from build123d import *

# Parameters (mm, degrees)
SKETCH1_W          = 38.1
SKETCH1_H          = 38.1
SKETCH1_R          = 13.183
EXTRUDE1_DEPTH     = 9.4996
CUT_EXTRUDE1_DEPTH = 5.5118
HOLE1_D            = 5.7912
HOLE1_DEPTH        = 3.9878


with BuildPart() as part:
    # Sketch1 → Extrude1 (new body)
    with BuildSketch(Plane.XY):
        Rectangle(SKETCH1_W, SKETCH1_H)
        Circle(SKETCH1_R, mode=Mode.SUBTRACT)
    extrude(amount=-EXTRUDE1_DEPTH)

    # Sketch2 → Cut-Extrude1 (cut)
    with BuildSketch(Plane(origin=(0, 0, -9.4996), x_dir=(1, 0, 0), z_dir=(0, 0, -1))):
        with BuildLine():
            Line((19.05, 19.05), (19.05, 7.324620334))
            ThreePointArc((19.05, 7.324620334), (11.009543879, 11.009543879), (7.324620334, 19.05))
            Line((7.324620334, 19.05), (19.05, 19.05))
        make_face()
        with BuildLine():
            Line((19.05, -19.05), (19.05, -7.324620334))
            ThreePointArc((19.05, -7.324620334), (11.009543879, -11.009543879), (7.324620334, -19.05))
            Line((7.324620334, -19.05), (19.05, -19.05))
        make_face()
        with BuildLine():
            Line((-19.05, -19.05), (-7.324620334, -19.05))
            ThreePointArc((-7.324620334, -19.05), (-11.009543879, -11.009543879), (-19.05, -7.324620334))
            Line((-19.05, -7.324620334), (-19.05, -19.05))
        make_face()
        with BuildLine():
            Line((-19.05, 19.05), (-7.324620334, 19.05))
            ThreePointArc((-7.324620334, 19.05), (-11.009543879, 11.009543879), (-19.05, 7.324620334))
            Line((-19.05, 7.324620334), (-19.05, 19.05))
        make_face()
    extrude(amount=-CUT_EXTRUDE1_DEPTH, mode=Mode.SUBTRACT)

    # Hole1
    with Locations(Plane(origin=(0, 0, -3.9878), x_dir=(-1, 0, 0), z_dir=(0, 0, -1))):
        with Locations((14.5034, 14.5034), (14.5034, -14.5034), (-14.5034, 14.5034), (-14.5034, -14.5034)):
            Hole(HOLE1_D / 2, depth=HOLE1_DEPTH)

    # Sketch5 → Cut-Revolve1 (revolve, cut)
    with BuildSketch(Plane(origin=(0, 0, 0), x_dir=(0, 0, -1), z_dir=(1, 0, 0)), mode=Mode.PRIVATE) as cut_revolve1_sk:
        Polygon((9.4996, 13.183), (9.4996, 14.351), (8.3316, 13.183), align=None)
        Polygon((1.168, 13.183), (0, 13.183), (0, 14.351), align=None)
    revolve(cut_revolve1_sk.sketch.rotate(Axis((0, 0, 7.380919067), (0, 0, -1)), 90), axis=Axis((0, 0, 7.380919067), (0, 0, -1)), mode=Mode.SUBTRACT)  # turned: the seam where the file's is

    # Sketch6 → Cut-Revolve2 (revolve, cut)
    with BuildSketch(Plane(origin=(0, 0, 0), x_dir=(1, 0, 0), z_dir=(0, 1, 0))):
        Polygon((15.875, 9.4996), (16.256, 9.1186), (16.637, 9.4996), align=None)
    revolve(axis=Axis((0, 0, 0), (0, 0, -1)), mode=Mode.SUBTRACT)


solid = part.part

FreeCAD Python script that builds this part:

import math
import FreeCAD as App
import Part
import Sketcher
Q = App.Units.Quantity


def add_polygon(sketch, points):
    """Adds a closed chain of lines whose ends are joined by coincident constraints."""
    first, n = sketch.GeometryCount, len(points)
    for a, b in zip(points, points[1:] + points[:1]):
        sketch.addGeometry(Part.LineSegment(App.Vector(*a, 0), App.Vector(*b, 0)), False)
    for i in range(n):
        sketch.addConstraint(Sketcher.Constraint("Coincident", first + i, 2, first + (i + 1) % n, 1))

doc = App.newDocument("Part")
body = doc.addObject("PartDesign::Body", "Body")

sketch1 = doc.addObject("Sketcher::SketchObject", "Sketch")
body.addObject(sketch1)
sketch1.AttachmentSupport = (doc.XY_Plane, [""])
sketch1.MapMode = "FlatFace"
add_polygon(sketch1, [(-19, 19), (-19, -19), (19, -19), (19, 19)])
sketch1.addGeometry(Part.Circle(App.Vector(0, 0, 0), App.Vector(0, 0, 1), 13), False)
sketch1.addConstraint([
    Sketcher.Constraint("Vertical", 0),
    Sketcher.Constraint("Horizontal", 1),
    Sketcher.Constraint("Vertical", 2),
    Sketcher.Constraint("Horizontal", 3),
    Sketcher.Constraint("Coincident", 4, 3, -1, 1),
    Sketcher.Constraint("Symmetric", 0, 2, 2, 2, -1, 1),
    Sketcher.Constraint("Equal", 3, 0),
    Sketcher.Constraint("DistanceX", 1, 1, 1, 2, Q("1.5 in")),
    Sketcher.Constraint("Diameter", 4, Q("26.366 mm")),
])
pad1 = doc.addObject("PartDesign::Pad", "Pad")
body.addObject(pad1)
pad1.Profile = sketch1
pad1.Length = Q("0.374 in")
pad1.Reversed = True

sketch2 = doc.addObject("Sketcher::SketchObject", "Sketch001")
body.addObject(sketch2)
sketch2.AttachmentSupport = (doc.XY_Plane, [""])
sketch2.MapMode = "FlatFace"
sketch2.AttachmentOffset = App.Placement(App.Vector(0, 0, -0.374 * 25.4), App.Rotation())
sketch2.addGeometry([
    Part.LineSegment(App.Vector(19, -7, 0), App.Vector(19, -19, 0)),
    Part.LineSegment(App.Vector(19, -19, 0), App.Vector(7, -19, 0)),
    Part.ArcOfCircle(Part.Circle(App.Vector(20, -20, 0), App.Vector(0, 0, 1), 13), math.radians(94), math.radians(176)),
    Part.LineSegment(App.Vector(19, 19, 0), App.Vector(19, 7, 0)),
    Part.ArcOfCircle(Part.Circle(App.Vector(20, 20, 0), App.Vector(0, 0, 1), 13), math.radians(-176), math.radians(-94)),
    Part.LineSegment(App.Vector(7, 19, 0), App.Vector(19, 19, 0)),
    Part.LineSegment(App.Vector(-19, 19, 0), App.Vector(-7, 19, 0)),
    Part.ArcOfCircle(Part.Circle(App.Vector(-20, 20, 0), App.Vector(0, 0, 1), 13), math.radians(-86), math.radians(-4)),
    Part.LineSegment(App.Vector(-19, 7, 0), App.Vector(-19, 19, 0)),
    Part.LineSegment(App.Vector(-7, -19, 0), App.Vector(-19, -19, 0)),
    Part.LineSegment(App.Vector(-19, -19, 0), App.Vector(-19, -7, 0)),
    Part.ArcOfCircle(Part.Circle(App.Vector(-20, -20, 0), App.Vector(0, 0, 1), 13), math.radians(4), math.radians(86)),
], False)
sketch2.addConstraint([
    Sketcher.Constraint("Coincident", 0, 2, 1, 1),
    Sketcher.Constraint("Coincident", 1, 2, 2, 2),
    Sketcher.Constraint("Coincident", 2, 1, 0, 1),
    Sketcher.Constraint("Coincident", 3, 2, 4, 2),
    Sketcher.Constraint("Coincident", 4, 1, 5, 1),
    Sketcher.Constraint("Coincident", 5, 2, 3, 1),
    Sketcher.Constraint("Coincident", 6, 2, 7, 2),
    Sketcher.Constraint("Coincident", 7, 1, 8, 1),
    Sketcher.Constraint("Coincident", 8, 2, 6, 1),
    Sketcher.Constraint("Coincident", 9, 2, 10, 1),
    Sketcher.Constraint("Coincident", 10, 2, 11, 2),
    Sketcher.Constraint("Coincident", 11, 1, 9, 1),
    Sketcher.Constraint("Vertical", 0),
    Sketcher.Constraint("Horizontal", 1),
    Sketcher.Constraint("Vertical", 3),
    Sketcher.Constraint("Horizontal", 5),
    Sketcher.Constraint("Horizontal", 6),
    Sketcher.Constraint("Vertical", 8),
    Sketcher.Constraint("Horizontal", 9),
    Sketcher.Constraint("Vertical", 10),
    Sketcher.Constraint("Equal", 2, 4),
    Sketcher.Constraint("Equal", 4, 7),
    Sketcher.Constraint("Equal", 7, 11),
    Sketcher.Constraint("Symmetric", 2, 3, 7, 3, -1, 1),
    Sketcher.Constraint("Symmetric", 4, 3, 11, 3, -1, 1),
    Sketcher.Constraint("Symmetric", 0, 2, 8, 2, -1, 1),
    Sketcher.Constraint("Symmetric", 5, 2, 9, 2, -1, 1),
    Sketcher.Constraint("Symmetric", 4, 3, 7, 3, -2),
    Sketcher.Constraint("Symmetric", 5, 2, 8, 2, -2),
    Sketcher.Constraint("Equal", 9, 0),
    Sketcher.Constraint("Radius", 2, Q("0.5 in")),
    Sketcher.Constraint("DistanceY", 1, 2, 4, 1, Q("1.5 in")),
    Sketcher.Constraint("DistanceX", 8, 2, 5, 2, Q("1.5 in")),
    Sketcher.Constraint("DistanceX", -1, 1, 2, 3, Q("0.787 in")),
])
pocket1 = doc.addObject("PartDesign::Pocket", "Pocket")
body.addObject(pocket1)
pocket1.Profile = sketch2
pocket1.Length = Q("0.217 in")
pocket1.Reversed = True

sketch3 = doc.addObject("Sketcher::SketchObject", "Sketch002")
body.addObject(sketch3)
sketch3.AttachmentSupport = (doc.XY_Plane, [""])
sketch3.MapMode = "FlatFace"
sketch3.AttachmentOffset = App.Placement(App.Vector(0, 0, -0.157 * 25.4), App.Rotation())
sketch3.addGeometry([
    Part.Circle(App.Vector(-14.5, 14.5, 0), App.Vector(0, 0, 1), 2.9),
    Part.Circle(App.Vector(-14.5, -14.5, 0), App.Vector(0, 0, 1), 2.9),
    Part.Circle(App.Vector(14.5, 14.5, 0), App.Vector(0, 0, 1), 2.9),
    Part.Circle(App.Vector(14.5, -14.5, 0), App.Vector(0, 0, 1), 2.9),
], False)
sketch3.addConstraint([
    Sketcher.Constraint("Equal", 0, 1),
    Sketcher.Constraint("Equal", 1, 2),
    Sketcher.Constraint("Equal", 2, 3),
    Sketcher.Constraint("Symmetric", 1, 3, 2, 3, -1, 1),
    Sketcher.Constraint("Symmetric", 0, 3, 3, 3, -1, 1),
    Sketcher.Constraint("Symmetric", 0, 3, 2, 3, -2),
    Sketcher.Constraint("Diameter", 0, Q("0.228 in")),
    Sketcher.Constraint("DistanceX", 0, 3, -1, 1, Q("0.571 in")),
    Sketcher.Constraint("DistanceY", -1, 1, 0, 3, Q("0.571 in")),
])
doc.recompute()
hole = doc.addObject("PartDesign::Hole", "Hole")
body.addObject(hole)
hole.Profile = sketch3
hole.ThreadType = "None"
hole.Diameter = Q("0.228 in")
hole.DepthType = "Dimension"
hole.Depth = Q("0.157 in")
hole.DrillPoint = "Flat"
hole.Reversed = True

sketch4 = doc.addObject("Sketcher::SketchObject", "Sketch003")
body.addObject(sketch4)
sketch4.AttachmentSupport = (doc.YZ_Plane, [""])
sketch4.MapMode = "FlatFace"
add_polygon(sketch4, [(13.2, -9.5), (14.4, -9.5), (13.2, -8.3)])
add_polygon(sketch4, [(13.2, 0), (13.2, -1.2), (14.4, 0)])
sketch4.addConstraint([
    Sketcher.Constraint("Horizontal", 0),
    Sketcher.Constraint("Vertical", 2),
    Sketcher.Constraint("Vertical", 3),
    Sketcher.Constraint("Horizontal", 5),
    Sketcher.Constraint("PointOnObject", 4, 2, -1),
    Sketcher.Constraint("Perpendicular", 1, 4),
    Sketcher.Constraint("Vertical", 2, 2, 3, 2),
    Sketcher.Constraint("Vertical", 0, 2, 4, 2),
    Sketcher.Constraint("Equal", 5, 2),
    Sketcher.Constraint("DistanceX", -1, 1, 0, 2, Q("0.565 in")),
    Sketcher.Constraint("DistanceY", 0, 2, -1, 1, Q("0.374 in")),
    Sketcher.Constraint("DistanceX", 0, 1, 0, 2, Q("1.168 mm")),
])
groove = doc.addObject("PartDesign::Groove", "Groove")
body.addObject(groove)
groove.Profile = sketch4
groove.ReferenceAxis = (sketch4, ["V_Axis"])
groove.Angle = 360

sketch5 = doc.addObject("Sketcher::SketchObject", "Sketch004")
body.addObject(sketch5)
sketch5.AttachmentSupport = (doc.XZ_Plane, [""])
sketch5.MapMode = "FlatFace"
add_polygon(sketch5, [(15.9, -9.5), (16.3, -9.1), (16.6, -9.5)])
sketch5.addConstraint([
    Sketcher.Constraint("Horizontal", 2),
    Sketcher.Constraint("Perpendicular", 0, 1),
    Sketcher.Constraint("Equal", 0, 1),
    Sketcher.Constraint("DistanceX", 2, 2, 2, 1, Q("0.03 in")),
    Sketcher.Constraint("DistanceX", -1, 1, 0, 2, Q("0.64 in")),
    Sketcher.Constraint("DistanceY", 0, 2, -1, 1, Q("0.359 in")),
])
groove2 = doc.addObject("PartDesign::Groove", "Groove001")
body.addObject(groove2)
groove2.Profile = sketch5
groove2.ReferenceAxis = (sketch5, ["V_Axis"])
groove2.Angle = 360

doc.recompute()
